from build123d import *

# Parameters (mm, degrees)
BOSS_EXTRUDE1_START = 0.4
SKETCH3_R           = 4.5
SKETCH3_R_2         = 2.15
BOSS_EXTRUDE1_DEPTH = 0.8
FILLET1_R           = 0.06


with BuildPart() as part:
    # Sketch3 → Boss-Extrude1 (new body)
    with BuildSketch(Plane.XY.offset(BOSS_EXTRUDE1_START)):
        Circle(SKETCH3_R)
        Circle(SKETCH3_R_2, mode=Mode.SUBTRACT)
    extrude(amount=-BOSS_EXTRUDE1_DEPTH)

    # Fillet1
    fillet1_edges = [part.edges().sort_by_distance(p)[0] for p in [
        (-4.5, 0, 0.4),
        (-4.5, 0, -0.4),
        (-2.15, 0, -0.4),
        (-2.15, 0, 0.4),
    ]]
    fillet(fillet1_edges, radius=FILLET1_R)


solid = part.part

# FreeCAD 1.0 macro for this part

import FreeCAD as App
import Part
import Sketcher


def edges_at(feature, points):
    """Names of the edges that pass closest to the given points."""
    edges = feature.Shape.Edges
    near = lambda p: min(range(len(edges)), key=lambda i: edges[i].distToShape(Part.Vertex(*p))[0])
    return sorted({f"Edge{near(p) + 1}" for p in points})

doc = App.newDocument("Part")
body = doc.addObject("PartDesign::Body", "Body")

# Sketch on XY plane
sketch1 = body.newObject("Sketcher::SketchObject", "Sketch")
sketch1.AttachmentSupport = (doc.getObject("XY_Plane"), [""])
sketch1.MapMode = "FlatFace"
sketch1.AttachmentOffset = App.Placement(App.Vector(0, 0, 0.4), App.Rotation())
sketch1.addGeometry(Part.Circle(App.Vector(0, 0, 0), App.Vector(0, 0, 1), 4.5), False)
sketch1.addGeometry(Part.Circle(App.Vector(0, 0, 0), App.Vector(0, 0, 1), 2.15), False)
sketch1.addConstraint(Sketcher.Constraint("Coincident", 0, 3, -1, 1))
sketch1.addConstraint(Sketcher.Constraint("Coincident", 1, 3, -1, 1))
sketch1.addConstraint(Sketcher.Constraint("Diameter", 0, 9.0))
sketch1.addConstraint(Sketcher.Constraint("Diameter", 1, 4.3))
pad1 = body.newObject("PartDesign::Pad", "Pad")
pad1.Profile = sketch1
pad1.Length = 0.8
pad1.Reversed = True
doc.recompute()

fillet = body.newObject("PartDesign::Fillet", "Fillet")
fillet.Base = (pad1, edges_at(pad1, [
    (-4.5, 0, 0.4),
    (-4.5, 0, -0.4),
    (-2.15, 0, -0.4),
    (-2.15, 0, 0.4),
]))
fillet.Radius = 0.06

doc.recompute()
